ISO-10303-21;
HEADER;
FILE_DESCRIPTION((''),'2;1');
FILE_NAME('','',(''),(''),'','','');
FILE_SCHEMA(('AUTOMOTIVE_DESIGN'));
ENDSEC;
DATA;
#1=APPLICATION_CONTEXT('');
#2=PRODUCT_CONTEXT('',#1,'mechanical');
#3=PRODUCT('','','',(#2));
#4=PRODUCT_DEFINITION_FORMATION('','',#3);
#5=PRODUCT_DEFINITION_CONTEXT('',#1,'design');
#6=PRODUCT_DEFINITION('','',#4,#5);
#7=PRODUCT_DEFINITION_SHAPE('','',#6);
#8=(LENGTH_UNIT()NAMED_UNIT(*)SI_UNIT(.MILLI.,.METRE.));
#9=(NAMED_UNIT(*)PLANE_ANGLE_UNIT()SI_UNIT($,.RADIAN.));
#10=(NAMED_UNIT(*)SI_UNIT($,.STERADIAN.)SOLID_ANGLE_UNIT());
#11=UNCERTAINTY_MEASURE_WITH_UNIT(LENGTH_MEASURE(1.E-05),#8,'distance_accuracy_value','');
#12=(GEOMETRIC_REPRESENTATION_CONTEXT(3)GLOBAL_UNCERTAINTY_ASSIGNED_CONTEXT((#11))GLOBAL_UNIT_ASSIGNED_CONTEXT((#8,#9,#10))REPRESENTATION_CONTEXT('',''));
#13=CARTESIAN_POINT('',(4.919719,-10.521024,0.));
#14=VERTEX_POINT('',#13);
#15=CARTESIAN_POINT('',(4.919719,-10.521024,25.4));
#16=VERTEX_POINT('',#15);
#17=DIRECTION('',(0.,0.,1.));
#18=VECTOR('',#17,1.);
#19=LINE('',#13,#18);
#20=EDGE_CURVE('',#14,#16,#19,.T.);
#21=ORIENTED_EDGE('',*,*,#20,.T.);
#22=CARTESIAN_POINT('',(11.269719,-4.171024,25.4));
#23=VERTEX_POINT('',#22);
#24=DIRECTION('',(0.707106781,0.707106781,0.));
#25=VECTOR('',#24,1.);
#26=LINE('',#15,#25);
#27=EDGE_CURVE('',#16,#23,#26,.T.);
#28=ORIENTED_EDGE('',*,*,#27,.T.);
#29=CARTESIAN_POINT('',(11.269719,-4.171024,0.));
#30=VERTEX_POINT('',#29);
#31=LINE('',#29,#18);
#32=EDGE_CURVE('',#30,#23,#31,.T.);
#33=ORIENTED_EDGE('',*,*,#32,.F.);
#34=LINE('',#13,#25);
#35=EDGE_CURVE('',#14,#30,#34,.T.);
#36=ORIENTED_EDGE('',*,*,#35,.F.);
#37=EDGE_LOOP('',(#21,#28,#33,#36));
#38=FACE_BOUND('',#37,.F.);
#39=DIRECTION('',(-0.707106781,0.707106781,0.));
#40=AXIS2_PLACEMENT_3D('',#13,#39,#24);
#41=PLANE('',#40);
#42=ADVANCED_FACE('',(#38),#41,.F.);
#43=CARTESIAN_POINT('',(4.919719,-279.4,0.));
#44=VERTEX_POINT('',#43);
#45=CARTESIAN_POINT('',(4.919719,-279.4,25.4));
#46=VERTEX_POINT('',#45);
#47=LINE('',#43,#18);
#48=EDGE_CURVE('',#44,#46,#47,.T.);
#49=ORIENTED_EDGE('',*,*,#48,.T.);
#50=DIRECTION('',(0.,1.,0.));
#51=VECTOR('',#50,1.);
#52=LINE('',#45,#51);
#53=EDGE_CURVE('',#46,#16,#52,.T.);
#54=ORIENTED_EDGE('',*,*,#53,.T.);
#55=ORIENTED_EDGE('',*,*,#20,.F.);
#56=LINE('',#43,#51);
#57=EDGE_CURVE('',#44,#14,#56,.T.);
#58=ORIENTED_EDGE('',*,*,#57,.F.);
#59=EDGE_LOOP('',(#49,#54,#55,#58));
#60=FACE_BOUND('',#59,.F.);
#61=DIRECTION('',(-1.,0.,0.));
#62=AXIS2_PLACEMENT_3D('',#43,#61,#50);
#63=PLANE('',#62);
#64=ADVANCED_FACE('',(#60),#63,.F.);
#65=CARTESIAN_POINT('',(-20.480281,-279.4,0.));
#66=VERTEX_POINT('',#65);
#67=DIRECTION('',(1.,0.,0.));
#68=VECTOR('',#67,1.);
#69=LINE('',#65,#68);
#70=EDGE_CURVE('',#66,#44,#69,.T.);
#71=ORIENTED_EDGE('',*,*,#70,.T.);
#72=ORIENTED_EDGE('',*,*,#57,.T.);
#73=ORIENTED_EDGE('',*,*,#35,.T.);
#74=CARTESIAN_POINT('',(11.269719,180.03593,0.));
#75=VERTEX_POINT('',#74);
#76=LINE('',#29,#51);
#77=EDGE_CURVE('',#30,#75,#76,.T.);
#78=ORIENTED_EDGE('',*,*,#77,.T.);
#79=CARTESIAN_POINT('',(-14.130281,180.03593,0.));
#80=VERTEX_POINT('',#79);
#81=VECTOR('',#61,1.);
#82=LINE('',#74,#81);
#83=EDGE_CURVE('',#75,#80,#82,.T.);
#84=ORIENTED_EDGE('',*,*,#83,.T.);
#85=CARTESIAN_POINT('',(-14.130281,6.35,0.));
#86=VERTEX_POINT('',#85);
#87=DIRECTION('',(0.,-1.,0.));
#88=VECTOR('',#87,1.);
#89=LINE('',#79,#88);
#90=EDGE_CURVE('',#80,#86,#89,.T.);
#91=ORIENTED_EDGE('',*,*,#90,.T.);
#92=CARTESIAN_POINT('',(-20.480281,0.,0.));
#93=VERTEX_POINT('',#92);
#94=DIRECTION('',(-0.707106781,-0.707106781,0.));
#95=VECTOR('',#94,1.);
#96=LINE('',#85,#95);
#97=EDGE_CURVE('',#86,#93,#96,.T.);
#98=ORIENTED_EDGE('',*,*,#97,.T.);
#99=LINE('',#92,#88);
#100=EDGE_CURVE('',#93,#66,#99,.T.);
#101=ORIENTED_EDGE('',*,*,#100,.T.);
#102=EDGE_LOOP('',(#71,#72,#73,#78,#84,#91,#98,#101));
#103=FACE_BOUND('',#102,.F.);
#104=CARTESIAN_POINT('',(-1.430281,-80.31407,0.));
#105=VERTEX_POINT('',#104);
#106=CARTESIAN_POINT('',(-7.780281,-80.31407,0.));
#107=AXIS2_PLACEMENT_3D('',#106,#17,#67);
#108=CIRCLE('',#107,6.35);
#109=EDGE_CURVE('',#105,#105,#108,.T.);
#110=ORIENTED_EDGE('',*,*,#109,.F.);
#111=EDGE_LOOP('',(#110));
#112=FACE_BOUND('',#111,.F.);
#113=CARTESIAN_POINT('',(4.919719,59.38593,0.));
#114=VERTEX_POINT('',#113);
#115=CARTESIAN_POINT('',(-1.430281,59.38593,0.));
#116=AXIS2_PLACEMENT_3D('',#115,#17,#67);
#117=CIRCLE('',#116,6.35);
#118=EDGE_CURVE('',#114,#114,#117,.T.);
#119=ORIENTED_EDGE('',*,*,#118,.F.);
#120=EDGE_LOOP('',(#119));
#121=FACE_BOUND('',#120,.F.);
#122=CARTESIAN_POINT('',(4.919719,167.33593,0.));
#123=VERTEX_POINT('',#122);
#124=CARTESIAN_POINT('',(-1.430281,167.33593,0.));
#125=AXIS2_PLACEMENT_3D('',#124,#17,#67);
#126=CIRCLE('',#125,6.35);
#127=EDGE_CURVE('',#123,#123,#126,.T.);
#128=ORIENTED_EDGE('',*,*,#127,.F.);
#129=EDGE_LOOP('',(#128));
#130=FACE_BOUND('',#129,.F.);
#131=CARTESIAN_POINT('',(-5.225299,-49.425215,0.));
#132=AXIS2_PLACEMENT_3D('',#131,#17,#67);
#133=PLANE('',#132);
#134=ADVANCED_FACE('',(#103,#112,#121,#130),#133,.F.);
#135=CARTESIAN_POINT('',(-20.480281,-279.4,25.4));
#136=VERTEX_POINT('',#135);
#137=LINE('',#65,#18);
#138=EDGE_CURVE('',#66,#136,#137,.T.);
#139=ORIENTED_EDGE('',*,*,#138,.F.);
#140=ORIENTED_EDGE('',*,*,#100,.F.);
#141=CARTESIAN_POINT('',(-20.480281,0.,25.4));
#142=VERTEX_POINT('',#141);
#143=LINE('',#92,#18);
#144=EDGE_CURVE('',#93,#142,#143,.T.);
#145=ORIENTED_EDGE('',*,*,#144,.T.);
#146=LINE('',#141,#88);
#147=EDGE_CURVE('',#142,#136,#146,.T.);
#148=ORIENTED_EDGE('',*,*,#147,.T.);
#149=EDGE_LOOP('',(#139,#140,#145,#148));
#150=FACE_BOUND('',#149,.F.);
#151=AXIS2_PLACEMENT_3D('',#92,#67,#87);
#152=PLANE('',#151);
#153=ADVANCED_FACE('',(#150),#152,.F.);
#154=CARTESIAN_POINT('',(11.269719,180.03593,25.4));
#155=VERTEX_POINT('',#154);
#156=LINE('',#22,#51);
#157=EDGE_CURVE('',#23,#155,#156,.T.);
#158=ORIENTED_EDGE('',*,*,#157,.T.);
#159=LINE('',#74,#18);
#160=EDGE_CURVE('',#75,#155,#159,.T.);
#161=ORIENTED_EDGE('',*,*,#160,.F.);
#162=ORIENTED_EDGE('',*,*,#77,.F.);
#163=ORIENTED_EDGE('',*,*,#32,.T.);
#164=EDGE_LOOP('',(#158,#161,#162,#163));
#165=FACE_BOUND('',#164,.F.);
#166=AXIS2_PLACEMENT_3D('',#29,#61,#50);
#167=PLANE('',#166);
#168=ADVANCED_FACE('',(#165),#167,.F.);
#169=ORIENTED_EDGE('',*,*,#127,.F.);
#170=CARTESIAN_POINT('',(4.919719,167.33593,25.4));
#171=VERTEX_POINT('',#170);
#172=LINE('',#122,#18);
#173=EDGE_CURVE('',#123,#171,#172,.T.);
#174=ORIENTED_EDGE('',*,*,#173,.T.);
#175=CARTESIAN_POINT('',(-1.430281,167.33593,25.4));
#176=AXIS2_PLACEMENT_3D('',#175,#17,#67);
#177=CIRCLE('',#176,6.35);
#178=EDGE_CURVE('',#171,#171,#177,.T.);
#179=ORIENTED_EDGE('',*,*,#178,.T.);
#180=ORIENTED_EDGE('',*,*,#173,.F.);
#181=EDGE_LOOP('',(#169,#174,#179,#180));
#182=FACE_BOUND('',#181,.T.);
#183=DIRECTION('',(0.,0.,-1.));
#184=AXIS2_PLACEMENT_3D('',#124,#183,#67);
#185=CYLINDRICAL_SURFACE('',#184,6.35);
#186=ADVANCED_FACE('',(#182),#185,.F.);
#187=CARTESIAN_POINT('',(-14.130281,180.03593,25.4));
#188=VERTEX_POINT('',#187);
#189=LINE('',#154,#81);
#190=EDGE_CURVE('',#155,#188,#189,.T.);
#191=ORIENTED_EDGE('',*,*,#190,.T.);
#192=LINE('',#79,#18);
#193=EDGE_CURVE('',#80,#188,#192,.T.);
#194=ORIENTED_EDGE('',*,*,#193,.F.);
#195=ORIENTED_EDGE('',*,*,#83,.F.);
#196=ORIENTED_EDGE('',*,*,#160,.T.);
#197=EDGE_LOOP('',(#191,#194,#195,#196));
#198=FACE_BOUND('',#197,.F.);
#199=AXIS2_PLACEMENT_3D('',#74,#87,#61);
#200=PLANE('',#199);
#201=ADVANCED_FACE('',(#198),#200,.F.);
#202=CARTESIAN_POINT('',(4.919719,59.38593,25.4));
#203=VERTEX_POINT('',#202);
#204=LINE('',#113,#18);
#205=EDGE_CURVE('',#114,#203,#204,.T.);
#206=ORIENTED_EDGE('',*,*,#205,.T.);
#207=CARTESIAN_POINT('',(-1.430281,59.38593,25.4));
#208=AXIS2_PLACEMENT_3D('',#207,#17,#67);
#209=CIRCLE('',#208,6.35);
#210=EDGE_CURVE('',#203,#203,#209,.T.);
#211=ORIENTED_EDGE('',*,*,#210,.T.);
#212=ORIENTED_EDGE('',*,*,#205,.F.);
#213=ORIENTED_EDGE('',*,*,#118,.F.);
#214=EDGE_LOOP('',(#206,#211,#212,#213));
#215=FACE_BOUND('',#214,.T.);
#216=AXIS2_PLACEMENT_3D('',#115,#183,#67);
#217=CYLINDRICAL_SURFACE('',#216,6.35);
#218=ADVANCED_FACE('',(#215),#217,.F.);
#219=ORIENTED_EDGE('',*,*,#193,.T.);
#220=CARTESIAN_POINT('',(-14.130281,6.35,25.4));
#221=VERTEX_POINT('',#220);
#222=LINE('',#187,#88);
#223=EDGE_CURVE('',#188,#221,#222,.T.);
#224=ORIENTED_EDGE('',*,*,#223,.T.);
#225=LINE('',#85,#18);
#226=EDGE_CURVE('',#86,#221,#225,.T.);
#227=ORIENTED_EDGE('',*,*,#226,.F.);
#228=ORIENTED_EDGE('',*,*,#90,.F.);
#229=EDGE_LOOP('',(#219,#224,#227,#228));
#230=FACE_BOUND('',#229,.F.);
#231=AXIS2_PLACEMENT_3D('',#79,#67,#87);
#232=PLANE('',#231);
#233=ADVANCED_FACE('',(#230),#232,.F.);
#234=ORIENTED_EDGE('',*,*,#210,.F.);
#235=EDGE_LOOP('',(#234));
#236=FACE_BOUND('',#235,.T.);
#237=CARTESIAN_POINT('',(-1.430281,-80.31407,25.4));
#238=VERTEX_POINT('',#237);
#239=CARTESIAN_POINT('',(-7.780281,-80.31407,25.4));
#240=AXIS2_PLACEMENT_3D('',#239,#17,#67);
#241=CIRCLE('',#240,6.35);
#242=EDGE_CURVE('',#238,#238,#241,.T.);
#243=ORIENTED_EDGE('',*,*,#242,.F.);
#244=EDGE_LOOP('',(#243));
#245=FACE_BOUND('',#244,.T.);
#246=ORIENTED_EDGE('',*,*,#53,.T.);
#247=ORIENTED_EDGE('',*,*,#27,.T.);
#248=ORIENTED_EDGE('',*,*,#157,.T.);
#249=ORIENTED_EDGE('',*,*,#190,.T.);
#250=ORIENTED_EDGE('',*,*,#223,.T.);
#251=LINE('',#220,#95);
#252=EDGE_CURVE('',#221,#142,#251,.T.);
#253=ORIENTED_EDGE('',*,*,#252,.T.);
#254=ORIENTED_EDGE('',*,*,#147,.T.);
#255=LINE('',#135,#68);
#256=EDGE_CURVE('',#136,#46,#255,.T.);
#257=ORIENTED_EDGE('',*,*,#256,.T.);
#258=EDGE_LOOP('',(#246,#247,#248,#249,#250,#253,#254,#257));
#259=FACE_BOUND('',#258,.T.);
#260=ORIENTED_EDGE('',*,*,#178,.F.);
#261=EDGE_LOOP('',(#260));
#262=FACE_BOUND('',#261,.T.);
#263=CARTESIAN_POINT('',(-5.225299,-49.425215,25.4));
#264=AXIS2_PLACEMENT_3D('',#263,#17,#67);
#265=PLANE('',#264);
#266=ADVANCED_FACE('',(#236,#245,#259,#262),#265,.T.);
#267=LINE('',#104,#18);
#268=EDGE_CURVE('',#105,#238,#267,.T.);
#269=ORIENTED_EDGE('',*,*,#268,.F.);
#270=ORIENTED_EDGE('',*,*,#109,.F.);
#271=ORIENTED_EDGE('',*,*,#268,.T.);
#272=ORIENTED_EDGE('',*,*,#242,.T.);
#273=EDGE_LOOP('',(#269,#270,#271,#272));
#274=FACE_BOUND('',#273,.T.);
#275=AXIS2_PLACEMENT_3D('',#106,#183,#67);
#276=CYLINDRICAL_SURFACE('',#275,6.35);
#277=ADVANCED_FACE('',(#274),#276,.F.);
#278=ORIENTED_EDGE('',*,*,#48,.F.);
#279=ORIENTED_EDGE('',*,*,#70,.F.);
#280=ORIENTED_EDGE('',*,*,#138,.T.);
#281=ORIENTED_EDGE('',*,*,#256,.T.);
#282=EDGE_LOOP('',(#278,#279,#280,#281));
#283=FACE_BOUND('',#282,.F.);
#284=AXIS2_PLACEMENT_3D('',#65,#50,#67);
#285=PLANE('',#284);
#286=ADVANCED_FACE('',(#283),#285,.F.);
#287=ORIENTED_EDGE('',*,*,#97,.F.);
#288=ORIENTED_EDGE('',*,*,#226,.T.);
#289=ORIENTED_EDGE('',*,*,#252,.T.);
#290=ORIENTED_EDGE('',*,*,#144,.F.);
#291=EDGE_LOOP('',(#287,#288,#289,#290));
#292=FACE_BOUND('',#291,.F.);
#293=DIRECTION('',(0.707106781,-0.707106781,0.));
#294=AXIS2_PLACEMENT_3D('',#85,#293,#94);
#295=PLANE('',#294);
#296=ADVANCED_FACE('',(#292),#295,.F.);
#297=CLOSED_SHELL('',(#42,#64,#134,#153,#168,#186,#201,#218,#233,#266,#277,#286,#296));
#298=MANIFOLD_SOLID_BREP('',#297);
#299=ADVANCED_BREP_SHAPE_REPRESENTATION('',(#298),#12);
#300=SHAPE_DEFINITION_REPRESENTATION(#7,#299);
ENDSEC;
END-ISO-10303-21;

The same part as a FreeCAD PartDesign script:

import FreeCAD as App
import Part
import Sketcher
from FreeCAD import Vector
Q = App.Units.Quantity

doc = App.newDocument("Part")
params = doc.addObject("Spreadsheet::Sheet", "Params")
for row, (alias, value) in enumerate([
    ("sketch1_diameter", "0.5 in"),
    ("sketch1_width", "1 in"),
    ("sketch1_height", "11 in"),
    ("pad1_length", "1 in"),
], start=1):
    params.set(f"A{row}", alias)
    params.set(f"B{row}", "=" + value)
    params.setAlias(f"B{row}", alias)

body = doc.addObject("PartDesign::Body", "Body")

sketch1 = body.newObject("Sketcher::SketchObject", "Sketch")
sketch1.AttachmentSupport = (doc.getObject("XY_Plane"), [""])
sketch1.MapMode = "FlatFace"
sketch1.addGeometry(Part.LineSegment(Vector(-20.480281, 0, 0), Vector(-20.480281, -279.4, 0)), False)
sketch1.addGeometry(Part.LineSegment(Vector(-20.480281, -279.4, 0), Vector(4.919719, -279.4, 0)), False)
sketch1.addGeometry(Part.LineSegment(Vector(4.919719, -279.4, 0), Vector(4.919719, -10.521024, 0)), False)
sketch1.addGeometry(Part.LineSegment(Vector(4.919719, -10.521024, 0), Vector(11.269719, -4.171024, 0)), False)
sketch1.addGeometry(Part.LineSegment(Vector(11.269719, -4.171024, 0), Vector(11.269719, 180.03593, 0)), False)
sketch1.addGeometry(Part.LineSegment(Vector(11.269719, 180.03593, 0), Vector(-14.130281, 180.03593, 0)), False)
sketch1.addGeometry(Part.LineSegment(Vector(-14.130281, 180.03593, 0), Vector(-14.130281, 6.35, 0)), False)
sketch1.addGeometry(Part.LineSegment(Vector(-14.130281, 6.35, 0), Vector(-20.480281, 0, 0)), False)
sketch1.addGeometry(Part.Circle(Vector(-7.780281, -80.31407, 0), Vector(0, 0, 1), 6.35), False)
sketch1.addGeometry(Part.Circle(Vector(-1.430281, 59.38593, 0), Vector(0, 0, 1), 6.35), False)
sketch1.addGeometry(Part.Circle(Vector(-1.430281, 167.33593, 0), Vector(0, 0, 1), 6.35), False)
sketch1.addConstraint(Sketcher.Constraint("Coincident", 0, 2, 1, 1))
sketch1.addConstraint(Sketcher.Constraint("Coincident", 1, 2, 2, 1))
sketch1.addConstraint(Sketcher.Constraint("Coincident", 2, 2, 3, 1))
sketch1.addConstraint(Sketcher.Constraint("Coincident", 3, 2, 4, 1))
sketch1.addConstraint(Sketcher.Constraint("Coincident", 4, 2, 5, 1))
sketch1.addConstraint(Sketcher.Constraint("Coincident", 5, 2, 6, 1))
sketch1.addConstraint(Sketcher.Constraint("Coincident", 6, 2, 7, 1))
sketch1.addConstraint(Sketcher.Constraint("Coincident", 7, 2, 0, 1))
sketch1.addConstraint(Sketcher.Constraint("Vertical", 0))
sketch1.addConstraint(Sketcher.Constraint("Horizontal", 1))
sketch1.addConstraint(Sketcher.Constraint("Vertical", 2))
sketch1.addConstraint(Sketcher.Constraint("Vertical", 4))
sketch1.addConstraint(Sketcher.Constraint("Horizontal", 5))
sketch1.addConstraint(Sketcher.Constraint("Vertical", 6))
sketch1.addConstraint(Sketcher.Constraint("Equal", 8, 9))
sketch1.addConstraint(Sketcher.Constraint("Equal", 9, 10))
sketch1.addConstraint(Sketcher.Constraint("PointOnObject", 7, 2, -1))
sketch1.addConstraint(Sketcher.Constraint("Parallel", 3, 7))
sketch1.addConstraint(Sketcher.Constraint("Vertical", 9, 3, 10, 3))
sketch1.addConstraint(Sketcher.Constraint("Equal", 1, 5))
sketch1.addConstraint(Sketcher.Constraint("Diameter", 8, Q("0.5 in")))
sketch1.addConstraint(Sketcher.Constraint("DistanceX", 1, 1, 1, 2, Q("1 in")))
sketch1.addConstraint(Sketcher.Constraint("DistanceY", 0, 2, 0, 1, Q("11 in")))
sketch1.addConstraint(Sketcher.Constraint("Angle", 3, Q("45 deg")))
sketch1.addConstraint(Sketcher.Constraint("DistanceY", 8, 3, 9, 3, Q("5.5 in")))
sketch1.addConstraint(Sketcher.Constraint("DistanceX", 0, 2, 8, 3, Q("0.5 in")))
sketch1.addConstraint(Sketcher.Constraint("DistanceX", 9, 3, 3, 2, Q("0.5 in")))
sketch1.addConstraint(Sketcher.Constraint("DistanceY", 10, 3, 4, 2, Q("0.5 in")))
sketch1.addConstraint(Sketcher.Constraint("DistanceY", -1, 1, 6, 2, Q("0.25 in")))
sketch1.addConstraint(Sketcher.Constraint("DistanceY", 9, 3, 10, 3, Q("4.25 in")))
sketch1.addConstraint(Sketcher.Constraint("DistanceY", 6, 2, 6, 1, Q("173.68593 mm")))
sketch1.addConstraint(Sketcher.Constraint("DistanceY", 2, 1, 2, 2, Q("268.878976 mm")))
sketch1.addConstraint(Sketcher.Constraint("DistanceX", 8, 3, -1, 1, Q("7.780281 mm")))
sketch1.setExpression("Constraints[20]", "Params.sketch1_diameter")
sketch1.setExpression("Constraints[21]", "Params.sketch1_width")
sketch1.setExpression("Constraints[22]", "Params.sketch1_height")
pad1 = body.newObject("PartDesign::Pad", "Pad")
pad1.Profile = sketch1
pad1.setExpression("Length", "Params.pad1_length")

doc.recompute()
